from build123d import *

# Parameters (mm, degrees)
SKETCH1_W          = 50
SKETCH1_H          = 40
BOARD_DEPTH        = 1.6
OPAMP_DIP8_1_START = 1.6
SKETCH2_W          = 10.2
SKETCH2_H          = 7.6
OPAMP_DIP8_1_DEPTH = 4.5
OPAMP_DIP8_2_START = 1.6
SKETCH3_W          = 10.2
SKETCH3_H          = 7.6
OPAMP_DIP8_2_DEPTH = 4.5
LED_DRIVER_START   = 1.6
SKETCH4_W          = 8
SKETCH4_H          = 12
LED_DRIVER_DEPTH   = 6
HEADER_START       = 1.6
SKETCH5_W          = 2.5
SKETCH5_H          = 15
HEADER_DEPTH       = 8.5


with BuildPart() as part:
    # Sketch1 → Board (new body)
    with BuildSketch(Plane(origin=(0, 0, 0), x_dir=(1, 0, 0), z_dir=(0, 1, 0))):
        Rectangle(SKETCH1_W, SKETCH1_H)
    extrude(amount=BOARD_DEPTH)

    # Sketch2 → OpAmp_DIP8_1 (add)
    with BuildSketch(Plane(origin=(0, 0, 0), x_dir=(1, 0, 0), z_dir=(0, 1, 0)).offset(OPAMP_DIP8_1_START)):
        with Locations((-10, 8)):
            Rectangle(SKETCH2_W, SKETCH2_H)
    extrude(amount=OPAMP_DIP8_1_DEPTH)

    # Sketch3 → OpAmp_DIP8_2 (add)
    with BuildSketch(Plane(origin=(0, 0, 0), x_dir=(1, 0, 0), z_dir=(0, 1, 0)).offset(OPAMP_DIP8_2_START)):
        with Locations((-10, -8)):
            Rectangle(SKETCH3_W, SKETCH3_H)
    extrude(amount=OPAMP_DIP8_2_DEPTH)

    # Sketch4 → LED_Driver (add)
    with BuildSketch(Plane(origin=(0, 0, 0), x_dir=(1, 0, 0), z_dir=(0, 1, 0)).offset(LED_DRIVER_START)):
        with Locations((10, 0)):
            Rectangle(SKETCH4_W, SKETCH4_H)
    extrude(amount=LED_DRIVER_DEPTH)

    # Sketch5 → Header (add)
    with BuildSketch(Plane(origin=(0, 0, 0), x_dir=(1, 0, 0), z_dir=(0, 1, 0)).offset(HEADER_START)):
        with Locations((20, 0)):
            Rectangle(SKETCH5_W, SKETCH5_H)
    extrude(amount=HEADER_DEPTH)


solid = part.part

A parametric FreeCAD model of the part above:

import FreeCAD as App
import Part
import Sketcher
from FreeCAD import Vector


def add_polygon(sketch, points):
    """Adds a closed chain of lines whose ends are joined by coincident constraints."""
    first, n = sketch.GeometryCount, len(points)
    for a, b in zip(points, points[1:] + points[:1]):
        sketch.addGeometry(Part.LineSegment(App.Vector(*a, 0), App.Vector(*b, 0)), False)
    for i in range(n):
        sketch.addConstraint(Sketcher.Constraint("Coincident", first + i, 2, first + (i + 1) % n, 1))

doc = App.newDocument("Part")
body = doc.addObject("PartDesign::Body", "Body")

# Sketch on XZ plane
sketch1 = doc.addObject("Sketcher::SketchObject", "Sketch")
body.addObject(sketch1)
sketch1.AttachmentSupport = (doc.XZ_Plane, [""])
sketch1.MapMode = "FlatFace"
add_polygon(sketch1, [(-25, -20), (-25, 20), (25, 20), (25, -20)])  # lines 0-3
sketch1.addConstraint(Sketcher.Constraint("Vertical", 0))
sketch1.addConstraint(Sketcher.Constraint("Horizontal", 1))
sketch1.addConstraint(Sketcher.Constraint("Vertical", 2))
sketch1.addConstraint(Sketcher.Constraint("Horizontal", 3))
sketch1.addConstraint(Sketcher.Constraint("Symmetric", 0, 2, 2, 2, -1, 1))
sketch1.addConstraint(Sketcher.Constraint("DistanceX", 1, 1, 1, 2, 50.0))
sketch1.addConstraint(Sketcher.Constraint("DistanceY", 0, 1, 0, 2, 40.0))
pad1 = doc.addObject("PartDesign::Pad", "Pad")
body.addObject(pad1)
pad1.Profile = sketch1
pad1.Length = 1.6
pad1.Reversed = True

# Sketch on XZ plane
sketch2 = doc.addObject("Sketcher::SketchObject", "Sketch001")
body.addObject(sketch2)
sketch2.AttachmentSupport = (doc.XZ_Plane, [""])
sketch2.MapMode = "FlatFace"
sketch2.AttachmentOffset = App.Placement(Vector(0, 0, -1.6), App.Rotation())
add_polygon(sketch2, [(-15, -12), (-15, -4), (-5, -4), (-5, -12)])  # lines 0-3
sketch2.addConstraint(Sketcher.Constraint("Vertical", 0))
sketch2.addConstraint(Sketcher.Constraint("Horizontal", 1))
sketch2.addConstraint(Sketcher.Constraint("Vertical", 2))
sketch2.addConstraint(Sketcher.Constraint("Horizontal", 3))
sketch2.addConstraint(Sketcher.Constraint("DistanceX", 1, 1, 1, 2, 10.2))
sketch2.addConstraint(Sketcher.Constraint("DistanceY", 0, 1, 0, 2, 7.6))
sketch2.addConstraint(Sketcher.Constraint("DistanceX", 0, 2, -1, 1, 15.1))
sketch2.addConstraint(Sketcher.Constraint("DistanceY", 0, 2, -1, 1, 4.2))
pad2 = doc.addObject("PartDesign::Pad", "Pad001")
body.addObject(pad2)
pad2.Profile = sketch2
pad2.Length = 4.5
pad2.Reversed = True

# Sketch on XZ plane
sketch3 = doc.addObject("Sketcher::SketchObject", "Sketch002")
body.addObject(sketch3)
sketch3.AttachmentSupport = (doc.XZ_Plane, [""])
sketch3.MapMode = "FlatFace"
sketch3.AttachmentOffset = App.Placement(Vector(0, 0, -1.6), App.Rotation())
add_polygon(sketch3, [(-15, 4), (-15, 12), (-5, 12), (-5, 4)])  # lines 0-3
sketch3.addConstraint(Sketcher.Constraint("Vertical", 0))
sketch3.addConstraint(Sketcher.Constraint("Horizontal", 1))
sketch3.addConstraint(Sketcher.Constraint("Vertical", 2))
sketch3.addConstraint(Sketcher.Constraint("Horizontal", 3))
sketch3.addConstraint(Sketcher.Constraint("DistanceX", 1, 1, 1, 2, 10.2))
sketch3.addConstraint(Sketcher.Constraint("DistanceY", 0, 1, 0, 2, 7.6))
sketch3.addConstraint(Sketcher.Constraint("DistanceX", 0, 2, -1, 1, 15.1))
sketch3.addConstraint(Sketcher.Constraint("DistanceY", -1, 1, 0, 2, 11.8))
pad3 = doc.addObject("PartDesign::Pad", "Pad002")
body.addObject(pad3)
pad3.Profile = sketch3
pad3.Length = 4.5
pad3.Reversed = True

# Sketch on XZ plane
sketch4 = doc.addObject("Sketcher::SketchObject", "Sketch003")
body.addObject(sketch4)
sketch4.AttachmentSupport = (doc.XZ_Plane, [""])
sketch4.MapMode = "FlatFace"
sketch4.AttachmentOffset = App.Placement(Vector(0, 0, -1.6), App.Rotation())
add_polygon(sketch4, [(6, -6), (6, 6), (14, 6), (14, -6)])  # lines 0-3
sketch4.addConstraint(Sketcher.Constraint("Vertical", 0))
sketch4.addConstraint(Sketcher.Constraint("Horizontal", 1))
sketch4.addConstraint(Sketcher.Constraint("Vertical", 2))
sketch4.addConstraint(Sketcher.Constraint("Horizontal", 3))
sketch4.addConstraint(Sketcher.Constraint("DistanceX", 1, 1, 1, 2, 8.0))
sketch4.addConstraint(Sketcher.Constraint("DistanceY", 0, 1, 0, 2, 12.0))
sketch4.addConstraint(Sketcher.Constraint("DistanceX", -1, 1, 0, 2, 6.0))
sketch4.addConstraint(Sketcher.Constraint("DistanceY", -1, 1, 0, 2, 6.0))
pad4 = doc.addObject("PartDesign::Pad", "Pad003")
body.addObject(pad4)
pad4.Profile = sketch4
pad4.Length = 6
pad4.Reversed = True

# Sketch on XZ plane
sketch5 = doc.addObject("Sketcher::SketchObject", "Sketch004")
body.addObject(sketch5)
sketch5.AttachmentSupport = (doc.XZ_Plane, [""])
sketch5.MapMode = "FlatFace"
sketch5.AttachmentOffset = App.Placement(Vector(0, 0, -1.6), App.Rotation())
add_polygon(sketch5, [(18.8, -7.5), (18.8, 7.5), (21.2, 7.5), (21.2, -7.5)])  # lines 0-3
sketch5.addConstraint(Sketcher.Constraint("Vertical", 0))
sketch5.addConstraint(Sketcher.Constraint("Horizontal", 1))
sketch5.addConstraint(Sketcher.Constraint("Vertical", 2))
sketch5.addConstraint(Sketcher.Constraint("Horizontal", 3))
sketch5.addConstraint(Sketcher.Constraint("DistanceY", 0, 1, 0, 2, 15.0))
sketch5.addConstraint(Sketcher.Constraint("DistanceX", 1, 1, 1, 2, 2.5))
sketch5.addConstraint(Sketcher.Constraint("DistanceY", -1, 1, 0, 2, 7.5))
sketch5.addConstraint(Sketcher.Constraint("DistanceX", -1, 1, 0, 2, 18.75))
pad5 = doc.addObject("PartDesign::Pad", "Pad004")
body.addObject(pad5)
pad5.Profile = sketch5
pad5.Length = 8.5
pad5.Reversed = True

doc.recompute()
